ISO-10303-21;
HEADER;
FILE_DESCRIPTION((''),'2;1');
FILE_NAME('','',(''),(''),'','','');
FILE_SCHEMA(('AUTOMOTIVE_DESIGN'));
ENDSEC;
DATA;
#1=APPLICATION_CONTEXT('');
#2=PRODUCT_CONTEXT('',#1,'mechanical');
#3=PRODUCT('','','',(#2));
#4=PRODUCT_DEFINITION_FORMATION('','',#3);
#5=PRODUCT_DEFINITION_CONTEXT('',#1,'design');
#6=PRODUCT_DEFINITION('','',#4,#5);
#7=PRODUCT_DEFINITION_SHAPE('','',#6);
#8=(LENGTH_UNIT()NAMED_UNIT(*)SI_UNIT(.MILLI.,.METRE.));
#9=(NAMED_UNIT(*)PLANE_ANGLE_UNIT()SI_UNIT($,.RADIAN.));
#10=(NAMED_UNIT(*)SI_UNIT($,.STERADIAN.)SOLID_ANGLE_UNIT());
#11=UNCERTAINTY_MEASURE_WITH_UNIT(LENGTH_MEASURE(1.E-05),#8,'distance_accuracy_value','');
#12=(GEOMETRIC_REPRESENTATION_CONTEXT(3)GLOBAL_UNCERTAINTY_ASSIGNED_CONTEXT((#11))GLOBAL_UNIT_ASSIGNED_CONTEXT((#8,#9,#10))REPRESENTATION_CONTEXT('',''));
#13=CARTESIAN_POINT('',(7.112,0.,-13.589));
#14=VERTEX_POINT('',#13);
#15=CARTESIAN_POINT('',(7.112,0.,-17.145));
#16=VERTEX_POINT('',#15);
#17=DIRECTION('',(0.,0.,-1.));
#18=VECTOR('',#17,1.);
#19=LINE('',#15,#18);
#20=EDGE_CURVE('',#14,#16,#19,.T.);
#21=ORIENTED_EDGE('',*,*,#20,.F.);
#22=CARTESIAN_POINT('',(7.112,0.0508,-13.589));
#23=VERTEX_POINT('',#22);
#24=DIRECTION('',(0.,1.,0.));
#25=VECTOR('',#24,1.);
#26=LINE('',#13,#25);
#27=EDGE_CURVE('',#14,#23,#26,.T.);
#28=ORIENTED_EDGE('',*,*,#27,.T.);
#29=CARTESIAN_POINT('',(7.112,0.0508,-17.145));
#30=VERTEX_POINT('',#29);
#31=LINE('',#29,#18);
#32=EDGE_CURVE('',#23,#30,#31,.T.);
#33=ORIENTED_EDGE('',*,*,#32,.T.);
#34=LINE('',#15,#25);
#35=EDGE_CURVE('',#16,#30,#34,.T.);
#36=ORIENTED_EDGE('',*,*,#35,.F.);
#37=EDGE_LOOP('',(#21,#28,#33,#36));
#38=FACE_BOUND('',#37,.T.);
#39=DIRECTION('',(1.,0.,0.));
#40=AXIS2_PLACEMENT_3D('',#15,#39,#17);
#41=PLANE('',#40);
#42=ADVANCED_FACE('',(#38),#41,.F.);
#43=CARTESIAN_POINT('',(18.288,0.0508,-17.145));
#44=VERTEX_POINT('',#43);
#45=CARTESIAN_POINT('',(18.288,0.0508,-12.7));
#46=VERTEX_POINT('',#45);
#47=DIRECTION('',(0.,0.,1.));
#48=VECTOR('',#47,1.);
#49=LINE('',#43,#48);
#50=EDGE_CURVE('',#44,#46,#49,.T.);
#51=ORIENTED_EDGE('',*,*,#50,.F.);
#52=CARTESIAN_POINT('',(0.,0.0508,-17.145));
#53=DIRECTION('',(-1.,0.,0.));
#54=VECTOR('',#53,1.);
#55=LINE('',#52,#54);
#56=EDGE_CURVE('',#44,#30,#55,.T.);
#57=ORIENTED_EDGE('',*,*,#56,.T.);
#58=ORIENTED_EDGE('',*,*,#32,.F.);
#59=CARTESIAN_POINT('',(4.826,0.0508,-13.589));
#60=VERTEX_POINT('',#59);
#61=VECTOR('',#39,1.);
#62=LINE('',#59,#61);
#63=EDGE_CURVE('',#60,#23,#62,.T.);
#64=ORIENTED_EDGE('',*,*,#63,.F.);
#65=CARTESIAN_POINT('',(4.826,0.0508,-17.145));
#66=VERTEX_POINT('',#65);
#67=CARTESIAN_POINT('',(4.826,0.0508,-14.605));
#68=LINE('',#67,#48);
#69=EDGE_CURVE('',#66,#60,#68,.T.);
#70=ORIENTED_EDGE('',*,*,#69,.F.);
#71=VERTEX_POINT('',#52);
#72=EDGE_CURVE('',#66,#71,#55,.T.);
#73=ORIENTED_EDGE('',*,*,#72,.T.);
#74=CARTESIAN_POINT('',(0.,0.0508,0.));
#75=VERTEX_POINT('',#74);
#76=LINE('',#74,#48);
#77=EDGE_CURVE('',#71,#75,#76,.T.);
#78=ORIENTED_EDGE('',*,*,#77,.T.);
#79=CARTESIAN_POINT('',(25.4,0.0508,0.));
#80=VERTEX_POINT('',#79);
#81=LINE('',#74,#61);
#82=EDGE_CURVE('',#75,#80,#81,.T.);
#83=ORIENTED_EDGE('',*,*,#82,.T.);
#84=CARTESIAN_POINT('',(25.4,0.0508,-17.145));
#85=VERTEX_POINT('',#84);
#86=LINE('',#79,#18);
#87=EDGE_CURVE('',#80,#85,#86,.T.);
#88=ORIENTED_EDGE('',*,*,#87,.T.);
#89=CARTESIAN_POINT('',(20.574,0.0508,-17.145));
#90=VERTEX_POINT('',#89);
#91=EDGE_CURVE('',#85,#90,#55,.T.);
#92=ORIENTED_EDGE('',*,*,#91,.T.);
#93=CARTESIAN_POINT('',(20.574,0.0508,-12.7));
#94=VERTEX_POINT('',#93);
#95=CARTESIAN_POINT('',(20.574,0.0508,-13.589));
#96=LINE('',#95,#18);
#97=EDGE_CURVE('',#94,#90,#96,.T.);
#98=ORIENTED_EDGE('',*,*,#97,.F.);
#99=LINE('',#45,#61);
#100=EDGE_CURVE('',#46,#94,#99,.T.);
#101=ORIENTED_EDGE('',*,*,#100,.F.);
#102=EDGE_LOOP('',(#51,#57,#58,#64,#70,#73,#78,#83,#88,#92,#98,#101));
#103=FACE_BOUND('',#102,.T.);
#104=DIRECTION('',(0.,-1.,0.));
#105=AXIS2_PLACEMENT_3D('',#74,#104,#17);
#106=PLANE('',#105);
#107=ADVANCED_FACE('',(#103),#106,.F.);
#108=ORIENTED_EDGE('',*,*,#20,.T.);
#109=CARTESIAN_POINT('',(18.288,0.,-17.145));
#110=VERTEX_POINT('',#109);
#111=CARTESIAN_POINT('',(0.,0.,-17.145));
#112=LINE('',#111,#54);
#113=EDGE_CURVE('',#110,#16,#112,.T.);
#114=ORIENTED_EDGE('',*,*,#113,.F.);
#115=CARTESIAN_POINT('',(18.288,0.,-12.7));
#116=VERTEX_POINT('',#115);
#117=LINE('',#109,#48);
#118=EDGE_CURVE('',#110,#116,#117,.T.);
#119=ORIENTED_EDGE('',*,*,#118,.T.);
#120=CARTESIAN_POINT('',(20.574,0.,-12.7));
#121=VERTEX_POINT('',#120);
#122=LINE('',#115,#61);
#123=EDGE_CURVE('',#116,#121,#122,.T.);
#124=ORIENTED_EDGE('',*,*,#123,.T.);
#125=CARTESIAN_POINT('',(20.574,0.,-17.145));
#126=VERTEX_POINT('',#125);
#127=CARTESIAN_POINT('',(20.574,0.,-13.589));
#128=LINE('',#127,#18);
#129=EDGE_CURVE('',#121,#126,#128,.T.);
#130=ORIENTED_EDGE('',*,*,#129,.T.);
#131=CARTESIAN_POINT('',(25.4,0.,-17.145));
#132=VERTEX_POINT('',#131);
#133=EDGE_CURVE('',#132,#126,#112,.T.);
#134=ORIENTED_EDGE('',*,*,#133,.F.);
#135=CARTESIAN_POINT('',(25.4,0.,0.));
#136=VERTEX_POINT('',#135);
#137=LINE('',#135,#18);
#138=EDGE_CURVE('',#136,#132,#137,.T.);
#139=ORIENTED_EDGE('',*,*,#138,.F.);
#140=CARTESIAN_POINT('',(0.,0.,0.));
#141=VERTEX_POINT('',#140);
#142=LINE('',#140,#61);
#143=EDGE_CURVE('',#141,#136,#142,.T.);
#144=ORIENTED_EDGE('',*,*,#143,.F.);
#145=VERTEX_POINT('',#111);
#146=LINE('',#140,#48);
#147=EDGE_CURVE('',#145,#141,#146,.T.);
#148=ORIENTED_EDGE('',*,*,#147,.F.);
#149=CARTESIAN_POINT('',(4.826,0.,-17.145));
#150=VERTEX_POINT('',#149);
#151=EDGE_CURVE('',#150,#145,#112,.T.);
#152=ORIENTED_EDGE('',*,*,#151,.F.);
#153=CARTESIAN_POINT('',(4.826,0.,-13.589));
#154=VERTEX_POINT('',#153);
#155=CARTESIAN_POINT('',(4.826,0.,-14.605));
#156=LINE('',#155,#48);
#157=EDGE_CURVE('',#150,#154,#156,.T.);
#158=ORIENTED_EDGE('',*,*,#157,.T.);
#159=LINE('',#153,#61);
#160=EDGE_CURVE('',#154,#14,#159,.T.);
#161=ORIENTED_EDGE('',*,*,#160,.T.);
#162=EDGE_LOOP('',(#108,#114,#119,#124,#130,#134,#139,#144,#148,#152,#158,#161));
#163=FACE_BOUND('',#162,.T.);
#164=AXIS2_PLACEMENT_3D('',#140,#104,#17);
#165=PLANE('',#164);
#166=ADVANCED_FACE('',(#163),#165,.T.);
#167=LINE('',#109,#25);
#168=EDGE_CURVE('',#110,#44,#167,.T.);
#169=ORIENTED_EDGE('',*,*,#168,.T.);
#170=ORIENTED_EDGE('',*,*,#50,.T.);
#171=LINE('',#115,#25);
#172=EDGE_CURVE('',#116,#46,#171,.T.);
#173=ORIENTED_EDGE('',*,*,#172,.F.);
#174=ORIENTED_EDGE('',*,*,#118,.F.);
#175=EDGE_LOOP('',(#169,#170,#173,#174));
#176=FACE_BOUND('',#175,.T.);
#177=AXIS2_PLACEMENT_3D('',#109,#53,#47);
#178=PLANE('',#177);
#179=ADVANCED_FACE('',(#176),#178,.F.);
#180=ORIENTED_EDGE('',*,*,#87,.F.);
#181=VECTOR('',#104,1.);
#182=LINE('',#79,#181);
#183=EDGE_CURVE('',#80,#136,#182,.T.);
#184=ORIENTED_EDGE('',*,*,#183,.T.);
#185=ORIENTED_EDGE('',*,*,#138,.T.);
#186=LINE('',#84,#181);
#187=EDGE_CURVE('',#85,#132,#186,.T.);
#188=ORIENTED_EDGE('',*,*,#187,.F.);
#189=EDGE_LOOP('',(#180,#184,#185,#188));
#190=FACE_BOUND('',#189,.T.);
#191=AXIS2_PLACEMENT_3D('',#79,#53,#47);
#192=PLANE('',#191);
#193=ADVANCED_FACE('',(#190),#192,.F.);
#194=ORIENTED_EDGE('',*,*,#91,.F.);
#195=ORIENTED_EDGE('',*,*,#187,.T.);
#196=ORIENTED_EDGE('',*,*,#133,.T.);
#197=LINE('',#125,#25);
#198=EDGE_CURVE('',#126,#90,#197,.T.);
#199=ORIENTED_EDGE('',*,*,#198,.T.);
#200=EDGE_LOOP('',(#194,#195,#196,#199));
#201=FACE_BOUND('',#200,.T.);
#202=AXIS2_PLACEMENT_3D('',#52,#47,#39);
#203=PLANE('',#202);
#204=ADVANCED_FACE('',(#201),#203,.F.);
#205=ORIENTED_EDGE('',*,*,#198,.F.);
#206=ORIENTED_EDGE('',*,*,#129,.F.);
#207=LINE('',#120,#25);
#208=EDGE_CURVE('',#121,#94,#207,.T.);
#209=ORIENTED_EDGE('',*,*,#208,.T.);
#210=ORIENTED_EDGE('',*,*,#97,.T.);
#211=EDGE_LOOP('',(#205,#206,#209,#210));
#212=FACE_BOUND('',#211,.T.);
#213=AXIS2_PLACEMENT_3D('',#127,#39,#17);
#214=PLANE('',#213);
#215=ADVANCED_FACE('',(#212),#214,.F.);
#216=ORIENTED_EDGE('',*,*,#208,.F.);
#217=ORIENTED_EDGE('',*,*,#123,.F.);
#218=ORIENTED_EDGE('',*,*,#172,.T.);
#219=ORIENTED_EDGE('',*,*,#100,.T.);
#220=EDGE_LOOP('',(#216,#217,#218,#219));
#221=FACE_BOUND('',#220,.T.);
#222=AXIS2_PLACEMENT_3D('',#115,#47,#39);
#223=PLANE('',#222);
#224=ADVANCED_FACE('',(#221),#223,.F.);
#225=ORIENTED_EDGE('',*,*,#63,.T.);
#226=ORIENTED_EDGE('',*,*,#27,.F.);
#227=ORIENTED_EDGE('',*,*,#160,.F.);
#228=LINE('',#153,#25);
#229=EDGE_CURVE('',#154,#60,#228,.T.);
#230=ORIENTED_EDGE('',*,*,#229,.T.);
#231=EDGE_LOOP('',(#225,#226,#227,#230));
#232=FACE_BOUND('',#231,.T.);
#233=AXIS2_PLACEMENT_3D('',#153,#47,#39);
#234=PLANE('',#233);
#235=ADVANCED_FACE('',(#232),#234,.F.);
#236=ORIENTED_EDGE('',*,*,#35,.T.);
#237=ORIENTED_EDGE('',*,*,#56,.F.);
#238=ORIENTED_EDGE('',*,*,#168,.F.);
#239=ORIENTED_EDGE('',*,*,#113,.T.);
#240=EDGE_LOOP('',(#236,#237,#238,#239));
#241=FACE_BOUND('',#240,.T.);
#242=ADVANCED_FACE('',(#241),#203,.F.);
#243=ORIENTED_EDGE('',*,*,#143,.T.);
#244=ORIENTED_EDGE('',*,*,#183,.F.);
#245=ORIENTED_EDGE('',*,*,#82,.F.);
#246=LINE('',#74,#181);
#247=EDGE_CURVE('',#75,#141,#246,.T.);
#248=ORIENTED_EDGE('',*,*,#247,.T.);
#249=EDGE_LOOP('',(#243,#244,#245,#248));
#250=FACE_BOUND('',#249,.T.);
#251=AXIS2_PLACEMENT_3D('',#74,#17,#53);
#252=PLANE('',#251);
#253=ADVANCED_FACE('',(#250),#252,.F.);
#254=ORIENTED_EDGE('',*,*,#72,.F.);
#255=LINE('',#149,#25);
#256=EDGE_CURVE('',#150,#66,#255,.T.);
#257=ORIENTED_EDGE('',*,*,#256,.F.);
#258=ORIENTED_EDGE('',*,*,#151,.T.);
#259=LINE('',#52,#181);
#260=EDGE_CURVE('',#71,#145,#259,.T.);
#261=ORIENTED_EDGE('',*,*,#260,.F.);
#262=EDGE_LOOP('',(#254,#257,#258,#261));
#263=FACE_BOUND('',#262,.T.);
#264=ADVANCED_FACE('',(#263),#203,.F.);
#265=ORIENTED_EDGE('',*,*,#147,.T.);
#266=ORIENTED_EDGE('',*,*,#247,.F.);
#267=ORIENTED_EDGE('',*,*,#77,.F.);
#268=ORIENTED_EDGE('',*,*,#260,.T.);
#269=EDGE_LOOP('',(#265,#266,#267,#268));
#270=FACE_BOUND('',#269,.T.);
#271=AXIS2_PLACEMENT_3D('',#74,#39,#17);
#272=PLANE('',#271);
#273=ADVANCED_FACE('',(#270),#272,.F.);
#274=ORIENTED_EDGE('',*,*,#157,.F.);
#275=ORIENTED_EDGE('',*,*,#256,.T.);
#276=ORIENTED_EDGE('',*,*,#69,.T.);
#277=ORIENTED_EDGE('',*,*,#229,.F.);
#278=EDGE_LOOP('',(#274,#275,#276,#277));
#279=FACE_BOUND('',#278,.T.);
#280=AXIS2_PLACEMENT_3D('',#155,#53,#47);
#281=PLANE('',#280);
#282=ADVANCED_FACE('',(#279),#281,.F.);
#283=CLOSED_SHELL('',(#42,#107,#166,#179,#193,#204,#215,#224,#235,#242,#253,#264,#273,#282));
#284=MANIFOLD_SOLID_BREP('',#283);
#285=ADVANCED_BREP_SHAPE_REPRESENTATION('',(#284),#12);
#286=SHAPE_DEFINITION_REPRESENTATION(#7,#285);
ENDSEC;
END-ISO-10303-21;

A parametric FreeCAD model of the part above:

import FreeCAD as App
import Part
import Sketcher
from FreeCAD import Vector
Q = App.Units.Quantity


def add_polygon(sketch, points):
    """Adds a closed chain of lines whose ends are joined by coincident constraints."""
    first, n = sketch.GeometryCount, len(points)
    for a, b in zip(points, points[1:] + points[:1]):
        sketch.addGeometry(Part.LineSegment(App.Vector(*a, 0), App.Vector(*b, 0)), False)
    for i in range(n):
        sketch.addConstraint(Sketcher.Constraint("Coincident", first + i, 2, first + (i + 1) % n, 1))

doc = App.newDocument("Part")
params = doc.addObject("Spreadsheet::Sheet", "Params")
for row, (alias, value) in enumerate([
    ("sketch1_width", "1 in"),
    ("sketch1_height", "0.675 in"),
    ("pad1_length", "0.002 in"),
    ("sketch2_width", "0.09 in"),
    ("sketch2_height", "0.14 in"),
    ("sketch2_height2", "0.175 in"),
], start=1):
    params.set(f"A{row}", alias)
    params.set(f"B{row}", "=" + value)
    params.setAlias(f"B{row}", alias)

body = doc.addObject("PartDesign::Body", "Body")

sketch1 = doc.addObject("Sketcher::SketchObject", "Sketch")
body.addObject(sketch1)
sketch1.AttachmentSupport = (doc.XZ_Plane, [""])
sketch1.MapMode = "FlatFace"
add_polygon(sketch1, [(0, -17.145), (0, 0), (25.4, 0), (25.4, -17.145)])
sketch1.addConstraint([
    Sketcher.Constraint("Vertical", 0),
    Sketcher.Constraint("Horizontal", 1),
    Sketcher.Constraint("Vertical", 2),
    Sketcher.Constraint("Horizontal", 3),
    Sketcher.Constraint("Coincident", 0, 2, -1, 1),
    Sketcher.Constraint("DistanceX", 1, 1, 1, 2, Q("1 in")),
    Sketcher.Constraint("DistanceY", 0, 1, 0, 2, Q("0.675 in")),
])
sketch1.setExpression("Constraints[9]", "Params.sketch1_width")
sketch1.setExpression("Constraints[10]", "Params.sketch1_height")
pad1 = doc.addObject("PartDesign::Pad", "Pad")
body.addObject(pad1)
pad1.Profile = sketch1
pad1.setExpression("Length", "Params.pad1_length")
pad1.Reversed = True

sketch2 = doc.addObject("Sketcher::SketchObject", "Sketch001")
body.addObject(sketch2)
sketch2.AttachmentSupport = (doc.XZ_Plane, [""])
sketch2.MapMode = "FlatFace"
sketch2.AttachmentOffset = App.Placement(Vector(0, 0, -0.002 * 25.4), App.Rotation())
add_polygon(sketch2, [(7.112, -17.145), (4.826, -17.145), (4.826, -13.589), (7.112, -13.589)])
add_polygon(sketch2, [(20.574, -17.145), (18.288, -17.145), (18.288, -12.7), (20.574, -12.7)])
sketch2.addConstraint([
    Sketcher.Constraint("Horizontal", 0),
    Sketcher.Constraint("Vertical", 1),
    Sketcher.Constraint("Horizontal", 2),
    Sketcher.Constraint("Vertical", 3),
    Sketcher.Constraint("Horizontal", 4),
    Sketcher.Constraint("Vertical", 5),
    Sketcher.Constraint("Horizontal", 6),
    Sketcher.Constraint("Vertical", 7),
    Sketcher.Constraint("Horizontal", 3, 2, 4, 2),
    Sketcher.Constraint("Equal", 2, 4),
    Sketcher.Constraint("DistanceX", 0, 2, 0, 1, Q("0.09 in")),
    Sketcher.Constraint("DistanceY", 1, 1, 1, 2, Q("0.14 in")),
    Sketcher.Constraint("DistanceY", 5, 2, -1, 1, Q("0.5 in")),
    Sketcher.Constraint("DistanceY", 5, 1, 5, 2, Q("0.175 in")),
    Sketcher.Constraint("DistanceX", -1, 1, 0, 2, Q("0.19 in")),
    Sketcher.Constraint("DistanceX", -1, 1, 4, 2, Q("0.72 in")),
])
sketch2.setExpression("Constraints[18]", "Params.sketch2_width")
sketch2.setExpression("Constraints[19]", "Params.sketch2_height")
sketch2.setExpression("Constraints[21]", "Params.sketch2_height2")
pocket1 = doc.addObject("PartDesign::Pocket", "Pocket")
body.addObject(pocket1)
pocket1.Profile = sketch2
pocket1.Type = "ThroughAll"
pocket1.Reversed = True

doc.recompute()
